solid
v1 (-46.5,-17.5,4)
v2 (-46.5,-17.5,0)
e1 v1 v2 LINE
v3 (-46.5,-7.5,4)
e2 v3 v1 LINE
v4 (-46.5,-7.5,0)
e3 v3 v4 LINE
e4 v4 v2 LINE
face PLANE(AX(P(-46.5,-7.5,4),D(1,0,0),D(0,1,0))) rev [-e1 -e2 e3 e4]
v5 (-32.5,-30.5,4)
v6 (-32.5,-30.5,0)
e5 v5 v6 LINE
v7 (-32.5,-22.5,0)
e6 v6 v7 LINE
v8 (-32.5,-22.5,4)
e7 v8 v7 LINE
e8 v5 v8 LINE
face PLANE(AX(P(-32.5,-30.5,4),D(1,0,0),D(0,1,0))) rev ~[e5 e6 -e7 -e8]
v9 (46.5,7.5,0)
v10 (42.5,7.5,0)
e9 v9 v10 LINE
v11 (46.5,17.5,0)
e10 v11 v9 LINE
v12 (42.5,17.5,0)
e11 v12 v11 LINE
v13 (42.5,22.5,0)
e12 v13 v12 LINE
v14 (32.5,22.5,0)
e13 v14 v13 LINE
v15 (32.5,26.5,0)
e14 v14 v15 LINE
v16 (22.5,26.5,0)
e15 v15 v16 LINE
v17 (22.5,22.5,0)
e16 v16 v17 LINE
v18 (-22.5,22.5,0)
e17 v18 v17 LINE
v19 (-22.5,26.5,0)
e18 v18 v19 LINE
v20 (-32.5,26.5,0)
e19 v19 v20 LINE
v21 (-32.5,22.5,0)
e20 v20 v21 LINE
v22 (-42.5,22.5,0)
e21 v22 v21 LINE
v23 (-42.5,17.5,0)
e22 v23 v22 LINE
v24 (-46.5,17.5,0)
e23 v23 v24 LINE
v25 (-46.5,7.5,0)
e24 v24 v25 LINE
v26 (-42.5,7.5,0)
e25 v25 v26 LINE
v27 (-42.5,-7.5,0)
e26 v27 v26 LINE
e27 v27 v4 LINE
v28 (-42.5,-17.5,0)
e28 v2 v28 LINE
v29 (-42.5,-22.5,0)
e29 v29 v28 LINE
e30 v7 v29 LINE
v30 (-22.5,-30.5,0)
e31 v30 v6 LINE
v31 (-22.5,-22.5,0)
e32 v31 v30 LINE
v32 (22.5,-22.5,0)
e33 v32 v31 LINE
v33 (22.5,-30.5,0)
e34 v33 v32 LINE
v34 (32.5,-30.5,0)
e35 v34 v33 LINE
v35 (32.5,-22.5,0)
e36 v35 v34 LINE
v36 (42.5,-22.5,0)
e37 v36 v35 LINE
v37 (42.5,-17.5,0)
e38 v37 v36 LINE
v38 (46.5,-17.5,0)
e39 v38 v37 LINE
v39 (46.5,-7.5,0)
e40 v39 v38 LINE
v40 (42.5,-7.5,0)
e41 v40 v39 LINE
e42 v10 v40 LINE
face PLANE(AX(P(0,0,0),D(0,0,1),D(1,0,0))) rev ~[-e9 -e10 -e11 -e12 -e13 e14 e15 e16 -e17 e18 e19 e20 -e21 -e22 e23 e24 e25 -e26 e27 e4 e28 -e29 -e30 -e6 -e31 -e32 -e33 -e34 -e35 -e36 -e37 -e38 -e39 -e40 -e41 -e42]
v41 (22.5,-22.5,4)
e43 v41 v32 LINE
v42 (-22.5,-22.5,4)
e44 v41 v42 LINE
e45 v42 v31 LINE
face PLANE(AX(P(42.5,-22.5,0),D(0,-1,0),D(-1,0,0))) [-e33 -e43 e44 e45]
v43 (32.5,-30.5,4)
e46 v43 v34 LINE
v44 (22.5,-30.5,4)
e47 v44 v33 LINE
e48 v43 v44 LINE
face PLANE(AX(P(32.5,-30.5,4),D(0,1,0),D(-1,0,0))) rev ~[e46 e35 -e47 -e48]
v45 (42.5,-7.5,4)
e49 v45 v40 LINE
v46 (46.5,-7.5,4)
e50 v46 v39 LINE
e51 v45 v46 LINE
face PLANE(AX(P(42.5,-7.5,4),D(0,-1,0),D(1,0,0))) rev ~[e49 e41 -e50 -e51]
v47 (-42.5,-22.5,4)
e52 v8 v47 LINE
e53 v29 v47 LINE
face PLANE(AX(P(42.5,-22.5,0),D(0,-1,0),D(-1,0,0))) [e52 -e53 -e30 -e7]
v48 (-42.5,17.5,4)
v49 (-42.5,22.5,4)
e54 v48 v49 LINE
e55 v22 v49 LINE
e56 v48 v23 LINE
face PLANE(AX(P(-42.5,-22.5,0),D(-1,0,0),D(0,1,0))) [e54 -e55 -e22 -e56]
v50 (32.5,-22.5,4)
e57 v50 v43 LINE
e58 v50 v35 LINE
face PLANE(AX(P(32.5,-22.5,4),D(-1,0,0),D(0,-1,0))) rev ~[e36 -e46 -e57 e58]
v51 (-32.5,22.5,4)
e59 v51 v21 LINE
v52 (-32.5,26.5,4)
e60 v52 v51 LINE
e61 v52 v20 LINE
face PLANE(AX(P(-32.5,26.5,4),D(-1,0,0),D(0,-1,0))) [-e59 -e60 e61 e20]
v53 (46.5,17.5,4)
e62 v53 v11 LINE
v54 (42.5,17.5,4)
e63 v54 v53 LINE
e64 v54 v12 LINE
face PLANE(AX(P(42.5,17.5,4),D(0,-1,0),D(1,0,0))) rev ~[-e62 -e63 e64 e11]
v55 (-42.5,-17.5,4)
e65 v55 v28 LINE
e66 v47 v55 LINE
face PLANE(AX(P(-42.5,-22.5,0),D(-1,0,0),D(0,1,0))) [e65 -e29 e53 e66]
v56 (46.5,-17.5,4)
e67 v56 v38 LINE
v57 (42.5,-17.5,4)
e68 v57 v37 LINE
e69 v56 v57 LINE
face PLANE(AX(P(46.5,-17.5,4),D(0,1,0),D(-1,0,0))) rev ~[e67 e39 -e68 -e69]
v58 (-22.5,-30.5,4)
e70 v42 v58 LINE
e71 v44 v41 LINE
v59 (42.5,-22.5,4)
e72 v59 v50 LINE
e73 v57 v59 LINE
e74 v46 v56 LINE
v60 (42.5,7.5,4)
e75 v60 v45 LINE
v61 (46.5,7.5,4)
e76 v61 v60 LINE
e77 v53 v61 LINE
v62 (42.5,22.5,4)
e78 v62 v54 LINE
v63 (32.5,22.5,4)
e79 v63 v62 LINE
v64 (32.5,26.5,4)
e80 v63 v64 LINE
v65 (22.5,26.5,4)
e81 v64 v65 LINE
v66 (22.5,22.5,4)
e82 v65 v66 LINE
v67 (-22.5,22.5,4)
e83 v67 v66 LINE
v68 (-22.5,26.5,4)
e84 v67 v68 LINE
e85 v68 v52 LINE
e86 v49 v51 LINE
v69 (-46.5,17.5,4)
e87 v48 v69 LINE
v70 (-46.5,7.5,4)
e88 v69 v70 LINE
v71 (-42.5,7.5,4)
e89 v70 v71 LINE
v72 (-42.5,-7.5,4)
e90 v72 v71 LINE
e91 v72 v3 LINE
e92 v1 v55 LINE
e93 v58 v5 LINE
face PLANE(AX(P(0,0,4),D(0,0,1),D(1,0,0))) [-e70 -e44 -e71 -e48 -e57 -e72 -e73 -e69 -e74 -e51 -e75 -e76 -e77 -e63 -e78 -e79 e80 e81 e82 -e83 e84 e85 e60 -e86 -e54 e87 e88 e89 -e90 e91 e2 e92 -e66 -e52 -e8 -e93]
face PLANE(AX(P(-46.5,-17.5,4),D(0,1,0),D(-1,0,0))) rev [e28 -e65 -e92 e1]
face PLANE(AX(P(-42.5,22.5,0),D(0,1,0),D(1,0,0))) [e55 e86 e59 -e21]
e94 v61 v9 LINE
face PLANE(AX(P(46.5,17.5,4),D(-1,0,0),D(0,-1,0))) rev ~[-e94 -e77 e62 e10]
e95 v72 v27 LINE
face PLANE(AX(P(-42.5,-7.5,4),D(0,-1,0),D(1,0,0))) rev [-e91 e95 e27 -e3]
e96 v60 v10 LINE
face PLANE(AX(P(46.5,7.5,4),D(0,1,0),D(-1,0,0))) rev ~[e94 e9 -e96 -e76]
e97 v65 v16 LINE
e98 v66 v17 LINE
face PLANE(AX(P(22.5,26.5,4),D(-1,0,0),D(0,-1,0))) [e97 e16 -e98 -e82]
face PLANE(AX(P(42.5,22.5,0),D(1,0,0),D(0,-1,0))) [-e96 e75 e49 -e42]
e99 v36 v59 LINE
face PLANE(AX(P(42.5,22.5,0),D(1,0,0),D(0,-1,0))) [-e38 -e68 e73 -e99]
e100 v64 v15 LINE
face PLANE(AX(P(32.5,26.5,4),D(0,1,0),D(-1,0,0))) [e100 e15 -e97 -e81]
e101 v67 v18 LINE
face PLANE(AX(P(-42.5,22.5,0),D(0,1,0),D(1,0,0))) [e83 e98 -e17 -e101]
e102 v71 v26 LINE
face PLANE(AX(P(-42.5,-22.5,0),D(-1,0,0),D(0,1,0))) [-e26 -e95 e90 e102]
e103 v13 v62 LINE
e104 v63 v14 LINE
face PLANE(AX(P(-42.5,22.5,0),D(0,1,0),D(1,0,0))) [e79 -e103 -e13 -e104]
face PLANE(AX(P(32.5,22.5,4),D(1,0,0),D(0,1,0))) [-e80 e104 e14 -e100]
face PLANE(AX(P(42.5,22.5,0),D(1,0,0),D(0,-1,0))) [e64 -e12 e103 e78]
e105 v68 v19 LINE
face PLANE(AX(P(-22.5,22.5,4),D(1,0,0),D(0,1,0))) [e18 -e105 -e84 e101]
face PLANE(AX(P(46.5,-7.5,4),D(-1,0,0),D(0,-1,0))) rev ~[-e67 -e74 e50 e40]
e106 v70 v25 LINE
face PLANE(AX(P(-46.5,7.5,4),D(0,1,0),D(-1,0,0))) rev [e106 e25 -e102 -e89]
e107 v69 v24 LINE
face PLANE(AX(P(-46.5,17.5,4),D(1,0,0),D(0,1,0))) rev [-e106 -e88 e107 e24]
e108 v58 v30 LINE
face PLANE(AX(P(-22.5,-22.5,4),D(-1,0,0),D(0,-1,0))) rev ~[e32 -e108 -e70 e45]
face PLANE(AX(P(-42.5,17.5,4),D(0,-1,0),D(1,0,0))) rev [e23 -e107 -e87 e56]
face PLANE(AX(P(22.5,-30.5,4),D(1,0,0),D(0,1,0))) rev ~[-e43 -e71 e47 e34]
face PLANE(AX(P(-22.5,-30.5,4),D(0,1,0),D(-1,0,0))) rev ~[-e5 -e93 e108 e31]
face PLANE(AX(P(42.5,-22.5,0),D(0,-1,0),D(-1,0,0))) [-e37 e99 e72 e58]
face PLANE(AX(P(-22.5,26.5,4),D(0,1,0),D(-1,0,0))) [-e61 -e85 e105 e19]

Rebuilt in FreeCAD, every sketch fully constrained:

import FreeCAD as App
import Part
import Sketcher
Q = App.Units.Quantity

doc = App.newDocument("Part")
body = doc.addObject("PartDesign::Body", "Body")

# Sketch on XY plane
sketch1 = body.newObject("Sketcher::SketchObject", "Sketch")
sketch1.AttachmentSupport = (doc.getObject("XY_Plane"), [""])
sketch1.MapMode = "FlatFace"
sketch1.addGeometry(Part.LineSegment(App.Vector(-42, -22, 0), App.Vector(42, -22, 0)), False)
sketch1.addGeometry(Part.LineSegment(App.Vector(42, -22, 0), App.Vector(42, 22, 0)), False)
sketch1.addGeometry(Part.LineSegment(App.Vector(42, 22, 0), App.Vector(-42, 22, 0)), False)
sketch1.addGeometry(Part.LineSegment(App.Vector(-42, 22, 0), App.Vector(-42, -22, 0)), False)
sketch1.addConstraint(Sketcher.Constraint("Coincident", 0, 2, 1, 1))
sketch1.addConstraint(Sketcher.Constraint("Coincident", 1, 2, 2, 1))
sketch1.addConstraint(Sketcher.Constraint("Coincident", 2, 2, 3, 1))
sketch1.addConstraint(Sketcher.Constraint("Coincident", 3, 2, 0, 1))
sketch1.addConstraint(Sketcher.Constraint("Horizontal", 0))
sketch1.addConstraint(Sketcher.Constraint("Vertical", 1))
sketch1.addConstraint(Sketcher.Constraint("Horizontal", 2))
sketch1.addConstraint(Sketcher.Constraint("Vertical", 3))
sketch1.addConstraint(Sketcher.Constraint("Symmetric", 0, 2, 2, 2, -1, 1))
sketch1.addConstraint(Sketcher.Constraint("DistanceX", 0, 1, 0, 2, Q("85 mm")))
sketch1.addConstraint(Sketcher.Constraint("DistanceY", 1, 1, 1, 2, Q("45 mm")))
pad1 = body.newObject("PartDesign::Pad", "Pad")
pad1.Profile = sketch1
pad1.Length = 4

# Sketch on XY plane
sketch2 = body.newObject("Sketcher::SketchObject", "Sketch001")
sketch2.AttachmentSupport = (doc.getObject("XY_Plane"), [""])
sketch2.MapMode = "FlatFace"
sketch2.AttachmentOffset = App.Placement(App.Vector(0, 0, 4), App.Rotation())
sketch2.addGeometry(Part.LineSegment(App.Vector(42.5, -7.5, 0), App.Vector(42.5, -17.5, 0)), False)
sketch2.addGeometry(Part.LineSegment(App.Vector(42.5, -17.5, 0), App.Vector(46.5, -17.5, 0)), False)
sketch2.addGeometry(Part.LineSegment(App.Vector(46.5, -17.5, 0), App.Vector(46.5, -7.5, 0)), False)
sketch2.addGeometry(Part.LineSegment(App.Vector(46.5, -7.5, 0), App.Vector(42.5, -7.5, 0)), False)
sketch2.addGeometry(Part.LineSegment(App.Vector(46.5, 17.5, 0), App.Vector(42.5, 17.5, 0)), False)
sketch2.addGeometry(Part.LineSegment(App.Vector(42.5, 17.5, 0), App.Vector(42.5, 7.5, 0)), False)
sketch2.addGeometry(Part.LineSegment(App.Vector(42.5, 7.5, 0), App.Vector(46.5, 7.5, 0)), False)
sketch2.addGeometry(Part.LineSegment(App.Vector(46.5, 7.5, 0), App.Vector(46.5, 17.5, 0)), False)
sketch2.addConstraint(Sketcher.Constraint("Coincident", 0, 2, 1, 1))
sketch2.addConstraint(Sketcher.Constraint("Coincident", 1, 2, 2, 1))
sketch2.addConstraint(Sketcher.Constraint("Coincident", 2, 2, 3, 1))
sketch2.addConstraint(Sketcher.Constraint("Coincident", 3, 2, 0, 1))
sketch2.addConstraint(Sketcher.Constraint("Coincident", 4, 2, 5, 1))
sketch2.addConstraint(Sketcher.Constraint("Coincident", 5, 2, 6, 1))
sketch2.addConstraint(Sketcher.Constraint("Coincident", 6, 2, 7, 1))
sketch2.addConstraint(Sketcher.Constraint("Coincident", 7, 2, 4, 1))
sketch2.addConstraint(Sketcher.Constraint("Vertical", 0))
sketch2.addConstraint(Sketcher.Constraint("Horizontal", 1))
sketch2.addConstraint(Sketcher.Constraint("Vertical", 2))
sketch2.addConstraint(Sketcher.Constraint("Horizontal", 3))
sketch2.addConstraint(Sketcher.Constraint("Horizontal", 4))
sketch2.addConstraint(Sketcher.Constraint("Vertical", 5))
sketch2.addConstraint(Sketcher.Constraint("Horizontal", 6))
sketch2.addConstraint(Sketcher.Constraint("Vertical", 7))
sketch2.addConstraint(Sketcher.Constraint("Symmetric", 0, 2, 4, 2, -1))
sketch2.addConstraint(Sketcher.Constraint("Symmetric", 2, 2, 6, 2, -1))
sketch2.addConstraint(Sketcher.Constraint("DistanceX", 1, 1, 1, 2, Q("4 mm")))
sketch2.addConstraint(Sketcher.Constraint("DistanceY", 0, 2, 0, 1, Q("10 mm")))
sketch2.addConstraint(Sketcher.Constraint("DistanceY", 3, 2, 4, 2, Q("25 mm")))
sketch2.addConstraint(Sketcher.Constraint("DistanceX", -1, 1, 0, 2, Q("42.5 mm")))
pad2 = body.newObject("PartDesign::Pad", "Pad001")
pad2.Profile = sketch2
pad2.Length = 4
pad2.Reversed = True
doc.recompute()

mirrored = body.newObject("PartDesign::Mirrored", "Mirrored")
mirrored.Originals = [pad2]
mirrored.MirrorPlane = (doc.getObject("YZ_Plane"), [""])
body.Tip = mirrored

# Sketch on XY plane
sketch3 = body.newObject("Sketcher::SketchObject", "Sketch002")
sketch3.AttachmentSupport = (doc.getObject("XY_Plane"), [""])
sketch3.MapMode = "FlatFace"
sketch3.AttachmentOffset = App.Placement(App.Vector(0, 0, 4), App.Rotation())
sketch3.addGeometry(Part.LineSegment(App.Vector(32, -22, 0), App.Vector(22, -22, 0)), False)
sketch3.addGeometry(Part.LineSegment(App.Vector(22, -22, 0), App.Vector(22, -30, 0)), False)
sketch3.addGeometry(Part.LineSegment(App.Vector(22, -30, 0), App.Vector(32, -30, 0)), False)
sketch3.addGeometry(Part.LineSegment(App.Vector(32, -30, 0), App.Vector(32, -22, 0)), False)
sketch3.addGeometry(Part.LineSegment(App.Vector(-22, -22, 0), App.Vector(-32, -22, 0)), False)
sketch3.addGeometry(Part.LineSegment(App.Vector(-32, -22, 0), App.Vector(-32, -30, 0)), False)
sketch3.addGeometry(Part.LineSegment(App.Vector(-32, -30, 0), App.Vector(-22, -30, 0)), False)
sketch3.addGeometry(Part.LineSegment(App.Vector(-22, -30, 0), App.Vector(-22, -22, 0)), False)
sketch3.addConstraint(Sketcher.Constraint("Coincident", 0, 2, 1, 1))
sketch3.addConstraint(Sketcher.Constraint("Coincident", 1, 2, 2, 1))
sketch3.addConstraint(Sketcher.Constraint("Coincident", 2, 2, 3, 1))
sketch3.addConstraint(Sketcher.Constraint("Coincident", 3, 2, 0, 1))
sketch3.addConstraint(Sketcher.Constraint("Coincident", 4, 2, 5, 1))
sketch3.addConstraint(Sketcher.Constraint("Coincident", 5, 2, 6, 1))
sketch3.addConstraint(Sketcher.Constraint("Coincident", 6, 2, 7, 1))
sketch3.addConstraint(Sketcher.Constraint("Coincident", 7, 2, 4, 1))
sketch3.addConstraint(Sketcher.Constraint("Horizontal", 0))
sketch3.addConstraint(Sketcher.Constraint("Vertical", 1))
sketch3.addConstraint(Sketcher.Constraint("Horizontal", 2))
sketch3.addConstraint(Sketcher.Constraint("Vertical", 3))
sketch3.addConstraint(Sketcher.Constraint("Horizontal", 4))
sketch3.addConstraint(Sketcher.Constraint("Vertical", 5))
sketch3.addConstraint(Sketcher.Constraint("Horizontal", 6))
sketch3.addConstraint(Sketcher.Constraint("Vertical", 7))
sketch3.addConstraint(Sketcher.Constraint("Symmetric", 3, 2, 4, 2, -2))
sketch3.addConstraint(Sketcher.Constraint("Symmetric", 1, 2, 6, 2, -2))
sketch3.addConstraint(Sketcher.Constraint("DistanceX", 0, 2, 0, 1, Q("10 mm")))
sketch3.addConstraint(Sketcher.Constraint("DistanceY", 1, 2, 1, 1, Q("8 mm")))
sketch3.addConstraint(Sketcher.Constraint("DistanceX", 4, 2, 0, 2, Q("55 mm")))
sketch3.addConstraint(Sketcher.Constraint("DistanceY", 0, 2, -1, 1, Q("22.5 mm")))
pad3 = body.newObject("PartDesign::Pad", "Pad002")
pad3.Profile = sketch3
pad3.Length = 4
pad3.Reversed = True

# Sketch on XY plane
sketch4 = body.newObject("Sketcher::SketchObject", "Sketch003")
sketch4.AttachmentSupport = (doc.getObject("XY_Plane"), [""])
sketch4.MapMode = "FlatFace"
sketch4.AttachmentOffset = App.Placement(App.Vector(0, 0, 4), App.Rotation())
sketch4.addGeometry(Part.LineSegment(App.Vector(-32.5, 22.5, 0), App.Vector(-22.5, 22.5, 0)), False)
sketch4.addGeometry(Part.LineSegment(App.Vector(-22.5, 22.5, 0), App.Vector(-22.5, 26.5, 0)), False)
sketch4.addGeometry(Part.LineSegment(App.Vector(-22.5, 26.5, 0), App.Vector(-32.5, 26.5, 0)), False)
sketch4.addGeometry(Part.LineSegment(App.Vector(-32.5, 26.5, 0), App.Vector(-32.5, 22.5, 0)), False)
sketch4.addGeometry(Part.LineSegment(App.Vector(22.5, 22.5, 0), App.Vector(32.5, 22.5, 0)), False)
sketch4.addGeometry(Part.LineSegment(App.Vector(32.5, 22.5, 0), App.Vector(32.5, 26.5, 0)), False)
sketch4.addGeometry(Part.LineSegment(App.Vector(32.5, 26.5, 0), App.Vector(22.5, 26.5, 0)), False)
sketch4.addGeometry(Part.LineSegment(App.Vector(22.5, 26.5, 0), App.Vector(22.5, 22.5, 0)), False)
sketch4.addConstraint(Sketcher.Constraint("Coincident", 0, 2, 1, 1))
sketch4.addConstraint(Sketcher.Constraint("Coincident", 1, 2, 2, 1))
sketch4.addConstraint(Sketcher.Constraint("Coincident", 2, 2, 3, 1))
sketch4.addConstraint(Sketcher.Constraint("Coincident", 3, 2, 0, 1))
sketch4.addConstraint(Sketcher.Constraint("Coincident", 4, 2, 5, 1))
sketch4.addConstraint(Sketcher.Constraint("Coincident", 5, 2, 6, 1))
sketch4.addConstraint(Sketcher.Constraint("Coincident", 6, 2, 7, 1))
sketch4.addConstraint(Sketcher.Constraint("Coincident", 7, 2, 4, 1))
sketch4.addConstraint(Sketcher.Constraint("Horizontal", 0))
sketch4.addConstraint(Sketcher.Constraint("Vertical", 1))
sketch4.addConstraint(Sketcher.Constraint("Horizontal", 2))
sketch4.addConstraint(Sketcher.Constraint("Vertical", 3))
sketch4.addConstraint(Sketcher.Constraint("Horizontal", 4))
sketch4.addConstraint(Sketcher.Constraint("Vertical", 5))
sketch4.addConstraint(Sketcher.Constraint("Horizontal", 6))
sketch4.addConstraint(Sketcher.Constraint("Vertical", 7))
sketch4.addConstraint(Sketcher.Constraint("Symmetric", 3, 2, 4, 2, -2))
sketch4.addConstraint(Sketcher.Constraint("Symmetric", 1, 2, 6, 2, -2))
sketch4.addConstraint(Sketcher.Constraint("DistanceX", 0, 1, 0, 2, Q("10 mm")))
sketch4.addConstraint(Sketcher.Constraint("DistanceY", 1, 1, 1, 2, Q("4 mm")))
sketch4.addConstraint(Sketcher.Constraint("DistanceX", 0, 2, 4, 2, Q("55 mm")))
sketch4.addConstraint(Sketcher.Constraint("DistanceY", -1, 1, 0, 2, Q("22.5 mm")))
pad4 = body.newObject("PartDesign::Pad", "Pad003")
pad4.Profile = sketch4
pad4.Length = 4
pad4.Reversed = True

doc.recompute()
